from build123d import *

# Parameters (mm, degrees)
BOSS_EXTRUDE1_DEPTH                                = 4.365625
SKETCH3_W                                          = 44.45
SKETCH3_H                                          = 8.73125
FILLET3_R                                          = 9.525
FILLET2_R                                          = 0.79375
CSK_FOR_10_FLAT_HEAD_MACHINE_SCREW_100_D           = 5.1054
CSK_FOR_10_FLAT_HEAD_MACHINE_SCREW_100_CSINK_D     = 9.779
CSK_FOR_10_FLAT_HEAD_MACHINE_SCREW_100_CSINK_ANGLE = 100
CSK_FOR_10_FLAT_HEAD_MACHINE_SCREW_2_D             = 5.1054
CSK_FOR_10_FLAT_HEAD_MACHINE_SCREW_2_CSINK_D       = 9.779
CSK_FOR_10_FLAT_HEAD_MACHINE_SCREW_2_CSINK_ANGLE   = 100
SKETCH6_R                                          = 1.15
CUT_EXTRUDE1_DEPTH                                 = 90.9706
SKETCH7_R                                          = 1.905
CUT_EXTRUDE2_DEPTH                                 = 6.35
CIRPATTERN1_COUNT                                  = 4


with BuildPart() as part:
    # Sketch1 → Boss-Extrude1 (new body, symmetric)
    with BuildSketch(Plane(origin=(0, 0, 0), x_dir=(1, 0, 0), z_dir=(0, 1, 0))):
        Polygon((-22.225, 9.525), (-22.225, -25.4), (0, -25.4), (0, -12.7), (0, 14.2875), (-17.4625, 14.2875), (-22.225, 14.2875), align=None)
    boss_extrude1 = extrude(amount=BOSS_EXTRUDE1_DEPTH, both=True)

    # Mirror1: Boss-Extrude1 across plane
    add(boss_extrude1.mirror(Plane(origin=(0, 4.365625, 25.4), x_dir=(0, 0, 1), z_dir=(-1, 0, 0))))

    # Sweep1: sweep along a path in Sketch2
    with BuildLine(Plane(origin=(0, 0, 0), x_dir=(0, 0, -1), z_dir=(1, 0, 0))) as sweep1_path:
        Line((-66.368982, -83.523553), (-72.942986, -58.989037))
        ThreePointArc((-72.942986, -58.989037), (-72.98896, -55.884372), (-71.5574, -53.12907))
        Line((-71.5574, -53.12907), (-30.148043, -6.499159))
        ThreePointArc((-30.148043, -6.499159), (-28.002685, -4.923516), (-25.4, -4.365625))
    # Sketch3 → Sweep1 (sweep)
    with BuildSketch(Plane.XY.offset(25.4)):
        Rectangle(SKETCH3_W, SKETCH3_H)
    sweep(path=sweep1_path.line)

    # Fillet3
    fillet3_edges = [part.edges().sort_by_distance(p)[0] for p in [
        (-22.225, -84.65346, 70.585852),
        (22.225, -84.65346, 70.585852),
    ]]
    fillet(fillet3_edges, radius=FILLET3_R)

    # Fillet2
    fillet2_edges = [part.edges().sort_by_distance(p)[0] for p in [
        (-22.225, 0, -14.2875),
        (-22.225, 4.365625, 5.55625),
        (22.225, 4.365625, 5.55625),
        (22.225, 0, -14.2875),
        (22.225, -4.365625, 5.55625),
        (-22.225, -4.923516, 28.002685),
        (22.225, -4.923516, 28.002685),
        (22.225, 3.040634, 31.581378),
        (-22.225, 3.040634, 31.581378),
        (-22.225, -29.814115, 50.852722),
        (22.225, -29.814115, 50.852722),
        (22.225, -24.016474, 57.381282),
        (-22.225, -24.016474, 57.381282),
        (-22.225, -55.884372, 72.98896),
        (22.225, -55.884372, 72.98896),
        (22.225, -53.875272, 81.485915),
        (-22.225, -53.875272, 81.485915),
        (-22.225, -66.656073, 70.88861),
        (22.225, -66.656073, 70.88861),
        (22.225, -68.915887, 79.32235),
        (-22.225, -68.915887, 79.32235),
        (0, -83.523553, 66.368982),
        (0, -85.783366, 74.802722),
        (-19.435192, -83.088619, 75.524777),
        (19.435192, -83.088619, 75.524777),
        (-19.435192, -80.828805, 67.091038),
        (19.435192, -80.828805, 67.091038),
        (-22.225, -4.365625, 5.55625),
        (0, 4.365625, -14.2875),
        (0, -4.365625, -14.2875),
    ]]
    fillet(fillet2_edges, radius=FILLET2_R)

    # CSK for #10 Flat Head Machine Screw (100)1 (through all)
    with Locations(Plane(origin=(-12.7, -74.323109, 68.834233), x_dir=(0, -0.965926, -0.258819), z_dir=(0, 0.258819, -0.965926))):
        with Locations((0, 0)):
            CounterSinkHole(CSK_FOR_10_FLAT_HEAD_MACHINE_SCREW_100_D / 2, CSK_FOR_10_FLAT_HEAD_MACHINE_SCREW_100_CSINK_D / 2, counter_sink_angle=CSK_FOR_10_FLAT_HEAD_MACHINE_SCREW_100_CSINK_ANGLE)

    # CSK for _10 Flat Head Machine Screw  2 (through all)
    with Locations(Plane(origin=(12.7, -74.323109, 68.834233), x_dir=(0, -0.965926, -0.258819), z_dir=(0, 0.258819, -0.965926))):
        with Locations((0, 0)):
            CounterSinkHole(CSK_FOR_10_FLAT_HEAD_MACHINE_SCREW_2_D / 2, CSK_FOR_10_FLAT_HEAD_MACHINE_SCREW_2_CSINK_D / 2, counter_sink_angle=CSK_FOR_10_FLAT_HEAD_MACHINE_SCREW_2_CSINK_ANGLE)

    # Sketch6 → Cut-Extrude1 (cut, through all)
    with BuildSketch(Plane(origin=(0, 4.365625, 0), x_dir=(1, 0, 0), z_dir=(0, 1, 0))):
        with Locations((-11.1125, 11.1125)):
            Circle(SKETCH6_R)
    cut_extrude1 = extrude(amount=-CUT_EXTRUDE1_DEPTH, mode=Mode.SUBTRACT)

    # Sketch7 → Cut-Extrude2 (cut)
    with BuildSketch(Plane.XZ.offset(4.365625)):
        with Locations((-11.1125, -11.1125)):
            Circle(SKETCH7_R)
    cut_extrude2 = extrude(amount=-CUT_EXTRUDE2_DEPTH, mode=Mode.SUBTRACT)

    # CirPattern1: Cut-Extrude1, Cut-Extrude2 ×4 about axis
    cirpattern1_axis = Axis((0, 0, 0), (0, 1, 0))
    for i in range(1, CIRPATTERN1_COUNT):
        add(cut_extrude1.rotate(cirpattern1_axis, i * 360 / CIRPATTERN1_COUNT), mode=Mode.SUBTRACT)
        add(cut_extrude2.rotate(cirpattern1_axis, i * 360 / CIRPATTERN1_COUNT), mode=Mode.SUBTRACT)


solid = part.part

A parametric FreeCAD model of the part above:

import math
import FreeCAD as App
import Part
import Sketcher

V = App.Vector
Q = App.Units.Quantity


def edges_at(feature, points):
    """Names of the edges that pass closest to the given points."""
    edges = feature.Shape.Edges
    near = lambda p: min(range(len(edges)), key=lambda i: edges[i].distToShape(Part.Vertex(*p))[0])
    return sorted({f"Edge{near(p) + 1}" for p in points})


def add_polygon(sketch, points):
    """Adds a closed chain of lines whose ends are joined by coincident constraints."""
    first, n = sketch.GeometryCount, len(points)
    for a, b in zip(points, points[1:] + points[:1]):
        sketch.addGeometry(Part.LineSegment(App.Vector(*a, 0), App.Vector(*b, 0)), False)
    for i in range(n):
        sketch.addConstraint(Sketcher.Constraint("Coincident", first + i, 2, first + (i + 1) % n, 1))

doc = App.newDocument("Part")
params = doc.addObject("Spreadsheet::Sheet", "Params")
for row, (alias, value) in enumerate([
    ("sketch1_width", "0.875 in"),
    ("sketch1_height", "1.5625 in"),
    ("pad1_length", "0.34375 in"),
    ("sketch2_width", "1.75 in"),
    ("sketch2_height", "0.34375 in"),
    ("sketch3_radius", "0.2500001 in"),
    ("sketch3_length", "1 in"),
    ("fillet_radius", "0.375 in"),
    ("fillet2_radius", "0.03125 in"),
    ("sketch4_diameter", "0.201 in"),
    ("hole_diameter", "0.201 in"),
    ("hole_csink_diameter", "0.385 in"),
    ("sketch5_diameter", "0.201 in"),
    ("hole2_diameter", "0.201 in"),
    ("hole2_csink_diameter", "0.385 in"),
    ("sketch7_diameter", "0.15 in"),
    ("pocket2_length", "0.25 in"),
], start=1):
    params.set(f"A{row}", alias)
    params.set(f"B{row}", "=" + value)
    params.setAlias(f"B{row}", alias)

body = doc.addObject("PartDesign::Body", "Body")

# Sketch on XZ plane
sketch1 = body.newObject("Sketcher::SketchObject", "Sketch")
sketch1.AttachmentSupport = (doc.getObject("XZ_Plane"), [""])
sketch1.MapMode = "FlatFace"
add_polygon(sketch1, [(-22, 25), (0, 25), (0, -14), (-22, -14)])  # lines 0-3
sketch1.addConstraint([
    Sketcher.Constraint("Horizontal", 0),
    Sketcher.Constraint("Vertical", 1),
    Sketcher.Constraint("Horizontal", 2),
    Sketcher.Constraint("Vertical", 3),
    Sketcher.Constraint("PointOnObject", 0, 2, -2),
    Sketcher.Constraint("DistanceY", -1, 1, 0, 2, Q("1 in")),
    Sketcher.Constraint("DistanceX", 0, 1, 0, 2, Q("0.875 in")),
    Sketcher.Constraint("DistanceY", 1, 2, 1, 1, Q("1.5625 in")),
])
sketch1.setExpression("Constraints[10]", "Params.sketch1_width")
sketch1.setExpression("Constraints[11]", "Params.sketch1_height")
pad1 = body.newObject("PartDesign::Pad", "Pad")
pad1.Profile = sketch1
pad1.setExpression("Length", "Params.pad1_length")
pad1.Midplane = True
doc.recompute()

mirrored = body.newObject("PartDesign::Mirrored", "Mirrored")
mirrored.Originals = [pad1]
mirrored.MirrorPlane = (doc.getObject("YZ_Plane"), [""])
body.Tip = mirrored

# Sketch on XY plane
sketch2 = body.newObject("Sketcher::SketchObject", "Sketch001")
sketch2.AttachmentSupport = (doc.getObject("XY_Plane"), [""])
sketch2.MapMode = "FlatFace"
sketch2.AttachmentOffset = App.Placement(V(0, 0, 1 * 25.4), App.Rotation())
add_polygon(sketch2, [(-22, 4), (-22, -4), (22, -4), (22, 4)])  # lines 0-3
sketch2.addConstraint([
    Sketcher.Constraint("Vertical", 0),
    Sketcher.Constraint("Horizontal", 1),
    Sketcher.Constraint("Vertical", 2),
    Sketcher.Constraint("Horizontal", 3),
    Sketcher.Constraint("Symmetric", 0, 2, 2, 2, -1, 1),
    Sketcher.Constraint("DistanceX", 1, 1, 1, 2, Q("1.75 in")),
    Sketcher.Constraint("DistanceY", 0, 2, 0, 1, Q("0.34375 in")),
])
sketch2.setExpression("Constraints[9]", "Params.sketch2_width")
sketch2.setExpression("Constraints[10]", "Params.sketch2_height")

# Sketch on YZ plane
sketch3 = body.newObject("Sketcher::SketchObject", "Sketch002")
sketch3.AttachmentSupport = (doc.getObject("YZ_Plane"), [""])
sketch3.MapMode = "FlatFace"
sketch3.addGeometry([
    Part.LineSegment(V(-84, 66, 0), V(-59, 73, 0)),
    Part.ArcOfCircle(Part.Circle(V(-57, 67, 0), V(0, 0, 1), 6), math.radians(48), math.radians(105)),
    Part.LineSegment(V(-53, 72, 0), V(-6, 30, 0)),
    Part.ArcOfCircle(Part.Circle(V(-11, 25, 0), V(0, 0, 1), 6), math.radians(0), math.radians(48)),
], False)
sketch3.addConstraint([
    Sketcher.Constraint("Tangent", 0, 2, 1, 2),
    Sketcher.Constraint("Tangent", 1, 1, 2, 1),
    Sketcher.Constraint("Tangent", 2, 2, 3, 2),
    Sketcher.Constraint("Equal", 1, 3),
    Sketcher.Constraint("Radius", 1, Q("0.2500001 in")),
    Sketcher.Constraint("Distance", 0, Q("1 in")),
    Sketcher.Constraint("DistanceY", -1, 1, 3, 3, Q("0.9999999 in")),
    Sketcher.Constraint("DistanceY", -1, 1, 3, 1, Q("1 in")),
    Sketcher.Constraint("Angle", 0, Q("15.000001 deg")),
    Sketcher.Constraint("DistanceX", 3, 3, -1, 1, Q("0.4218751 in")),
    Sketcher.Constraint("DistanceY", -1, 1, 1, 1, 71.5574),
    Sketcher.Constraint("DistanceX", 1, 1, -1, 1, 53.12907),
])
sketch3.setExpression("Constraints[4]", "Params.sketch3_radius")
sketch3.setExpression("Constraints[5]", "Params.sketch3_length")
doc.recompute()

additivepipe = body.newObject("PartDesign::AdditivePipe", "AdditivePipe")
additivepipe.Profile = sketch2
additivepipe.Spine = (sketch3, ["Edge1", "Edge2", "Edge3", "Edge4"])
doc.recompute()

fillet = body.newObject("PartDesign::Fillet", "Fillet")
fillet.Base = (additivepipe, edges_at(additivepipe, [(-22.225, -84.653, 70.586), (22.225, -84.653, 70.586)]))
fillet.setExpression("Radius", "Params.fillet_radius")
doc.recompute()

fillet2 = body.newObject("PartDesign::Fillet", "Fillet001")
fillet2.Base = (fillet, ["Edge1"])
fillet2.UseAllEdges = True
fillet2.setExpression("Radius", "Params.fillet2_radius")

# Sketch on an angled plane
sketch4 = body.newObject("Sketcher::SketchObject", "Sketch003")
sketch4.Placement = App.Placement(V(0, -22.187254, 82.803988), App.Rotation(V(0, -0.965925849, -0.25881896), V(-1, 0, 0), V(0, 0.25881896, -0.965925849), "ZXY"))
sketch4.addGeometry(Part.Circle(V(54, 12.7, 0), V(0, 0, 1), 2.6), False)
sketch4.addConstraint([
    Sketcher.Constraint("Diameter", 0, Q("0.201 in")),
    Sketcher.Constraint("DistanceY", -1, 1, 0, 3, Q("0.5 in")),
    Sketcher.Constraint("DistanceX", -1, 1, 0, 3, 53.975008),
])
sketch4.setExpression("Constraints[0]", "Params.sketch4_diameter")
doc.recompute()
hole = body.newObject("PartDesign::Hole", "Hole")
hole.Profile = sketch4
hole.ThreadType = "None"
hole.setExpression("Diameter", "Params.hole_diameter")
hole.DepthType = "ThroughAll"
hole.HoleCutType = "Countersink"
hole.setExpression("HoleCutDiameter", "Params.hole_csink_diameter")
hole.HoleCutCountersinkAngle = 100

# Sketch on an angled plane
sketch5 = body.newObject("Sketcher::SketchObject", "Sketch004")
sketch5.Placement = App.Placement(V(0, -22.187254, 82.803988), App.Rotation(V(0, -0.965925849, -0.25881896), V(-1, 0, 0), V(0, 0.25881896, -0.965925849), "ZXY"))
sketch5.addGeometry(Part.Circle(V(54, -12.7, 0), V(0, 0, 1), 2.6), False)
sketch5.addConstraint([
    Sketcher.Constraint("Diameter", 0, Q("0.201 in")),
    Sketcher.Constraint("DistanceY", 0, 3, -1, 1, Q("0.5 in")),
    Sketcher.Constraint("DistanceX", -1, 1, 0, 3, 53.975008),
])
sketch5.setExpression("Constraints[0]", "Params.sketch5_diameter")
doc.recompute()
hole2 = body.newObject("PartDesign::Hole", "Hole001")
hole2.Profile = sketch5
hole2.ThreadType = "None"
hole2.setExpression("Diameter", "Params.hole2_diameter")
hole2.DepthType = "ThroughAll"
hole2.HoleCutType = "Countersink"
hole2.setExpression("HoleCutDiameter", "Params.hole2_csink_diameter")
hole2.HoleCutCountersinkAngle = 100

# Sketch on XZ plane
sketch6 = body.newObject("Sketcher::SketchObject", "Sketch005")
sketch6.AttachmentSupport = (doc.getObject("XZ_Plane"), [""])
sketch6.MapMode = "FlatFace"
sketch6.AttachmentOffset = App.Placement(V(0, 0, -0.171875 * 25.4), App.Rotation())
sketch6.addGeometry(Part.Circle(V(-11.1, -11.1, 0), V(0, 0, 1), 1.1), False)
sketch6.addConstraint([
    Sketcher.Constraint("Diameter", 0, 2.3),
    Sketcher.Constraint("DistanceX", 0, 3, -1, 1, Q("0.4375 in")),
    Sketcher.Constraint("DistanceY", 0, 3, -1, 1, Q("0.4375 in")),
])
pocket1 = body.newObject("PartDesign::Pocket", "Pocket")
pocket1.Profile = sketch6
pocket1.Type = "ThroughAll"
pocket1.Reversed = True

# Sketch on XZ plane
sketch7 = body.newObject("Sketcher::SketchObject", "Sketch006")
sketch7.AttachmentSupport = (doc.getObject("XZ_Plane"), [""])
sketch7.MapMode = "FlatFace"
sketch7.AttachmentOffset = App.Placement(V(0, 0, 0.171875 * 25.4), App.Rotation())
sketch7.addGeometry(Part.Circle(V(-11.1, -11.1, 0), V(0, 0, 1), 1.9), False)
sketch7.addConstraint([
    Sketcher.Constraint("Diameter", 0, Q("0.15 in")),
    Sketcher.Constraint("DistanceX", 0, 3, -1, 1, Q("0.4375 in")),
    Sketcher.Constraint("DistanceY", 0, 3, -1, 1, Q("0.4375 in")),
])
sketch7.setExpression("Constraints[0]", "Params.sketch7_diameter")
pocket2 = body.newObject("PartDesign::Pocket", "Pocket001")
pocket2.Profile = sketch7
pocket2.setExpression("Length", "Params.pocket2_length")
doc.recompute()

polarpattern = body.newObject("PartDesign::PolarPattern", "PolarPattern")
polarpattern.Originals = [pocket1, pocket2]
polarpattern.Axis = (doc.getObject("Y_Axis"), [""])
polarpattern.Angle = 360
polarpattern.Occurrences = 4
body.Tip = polarpattern

doc.recompute()
